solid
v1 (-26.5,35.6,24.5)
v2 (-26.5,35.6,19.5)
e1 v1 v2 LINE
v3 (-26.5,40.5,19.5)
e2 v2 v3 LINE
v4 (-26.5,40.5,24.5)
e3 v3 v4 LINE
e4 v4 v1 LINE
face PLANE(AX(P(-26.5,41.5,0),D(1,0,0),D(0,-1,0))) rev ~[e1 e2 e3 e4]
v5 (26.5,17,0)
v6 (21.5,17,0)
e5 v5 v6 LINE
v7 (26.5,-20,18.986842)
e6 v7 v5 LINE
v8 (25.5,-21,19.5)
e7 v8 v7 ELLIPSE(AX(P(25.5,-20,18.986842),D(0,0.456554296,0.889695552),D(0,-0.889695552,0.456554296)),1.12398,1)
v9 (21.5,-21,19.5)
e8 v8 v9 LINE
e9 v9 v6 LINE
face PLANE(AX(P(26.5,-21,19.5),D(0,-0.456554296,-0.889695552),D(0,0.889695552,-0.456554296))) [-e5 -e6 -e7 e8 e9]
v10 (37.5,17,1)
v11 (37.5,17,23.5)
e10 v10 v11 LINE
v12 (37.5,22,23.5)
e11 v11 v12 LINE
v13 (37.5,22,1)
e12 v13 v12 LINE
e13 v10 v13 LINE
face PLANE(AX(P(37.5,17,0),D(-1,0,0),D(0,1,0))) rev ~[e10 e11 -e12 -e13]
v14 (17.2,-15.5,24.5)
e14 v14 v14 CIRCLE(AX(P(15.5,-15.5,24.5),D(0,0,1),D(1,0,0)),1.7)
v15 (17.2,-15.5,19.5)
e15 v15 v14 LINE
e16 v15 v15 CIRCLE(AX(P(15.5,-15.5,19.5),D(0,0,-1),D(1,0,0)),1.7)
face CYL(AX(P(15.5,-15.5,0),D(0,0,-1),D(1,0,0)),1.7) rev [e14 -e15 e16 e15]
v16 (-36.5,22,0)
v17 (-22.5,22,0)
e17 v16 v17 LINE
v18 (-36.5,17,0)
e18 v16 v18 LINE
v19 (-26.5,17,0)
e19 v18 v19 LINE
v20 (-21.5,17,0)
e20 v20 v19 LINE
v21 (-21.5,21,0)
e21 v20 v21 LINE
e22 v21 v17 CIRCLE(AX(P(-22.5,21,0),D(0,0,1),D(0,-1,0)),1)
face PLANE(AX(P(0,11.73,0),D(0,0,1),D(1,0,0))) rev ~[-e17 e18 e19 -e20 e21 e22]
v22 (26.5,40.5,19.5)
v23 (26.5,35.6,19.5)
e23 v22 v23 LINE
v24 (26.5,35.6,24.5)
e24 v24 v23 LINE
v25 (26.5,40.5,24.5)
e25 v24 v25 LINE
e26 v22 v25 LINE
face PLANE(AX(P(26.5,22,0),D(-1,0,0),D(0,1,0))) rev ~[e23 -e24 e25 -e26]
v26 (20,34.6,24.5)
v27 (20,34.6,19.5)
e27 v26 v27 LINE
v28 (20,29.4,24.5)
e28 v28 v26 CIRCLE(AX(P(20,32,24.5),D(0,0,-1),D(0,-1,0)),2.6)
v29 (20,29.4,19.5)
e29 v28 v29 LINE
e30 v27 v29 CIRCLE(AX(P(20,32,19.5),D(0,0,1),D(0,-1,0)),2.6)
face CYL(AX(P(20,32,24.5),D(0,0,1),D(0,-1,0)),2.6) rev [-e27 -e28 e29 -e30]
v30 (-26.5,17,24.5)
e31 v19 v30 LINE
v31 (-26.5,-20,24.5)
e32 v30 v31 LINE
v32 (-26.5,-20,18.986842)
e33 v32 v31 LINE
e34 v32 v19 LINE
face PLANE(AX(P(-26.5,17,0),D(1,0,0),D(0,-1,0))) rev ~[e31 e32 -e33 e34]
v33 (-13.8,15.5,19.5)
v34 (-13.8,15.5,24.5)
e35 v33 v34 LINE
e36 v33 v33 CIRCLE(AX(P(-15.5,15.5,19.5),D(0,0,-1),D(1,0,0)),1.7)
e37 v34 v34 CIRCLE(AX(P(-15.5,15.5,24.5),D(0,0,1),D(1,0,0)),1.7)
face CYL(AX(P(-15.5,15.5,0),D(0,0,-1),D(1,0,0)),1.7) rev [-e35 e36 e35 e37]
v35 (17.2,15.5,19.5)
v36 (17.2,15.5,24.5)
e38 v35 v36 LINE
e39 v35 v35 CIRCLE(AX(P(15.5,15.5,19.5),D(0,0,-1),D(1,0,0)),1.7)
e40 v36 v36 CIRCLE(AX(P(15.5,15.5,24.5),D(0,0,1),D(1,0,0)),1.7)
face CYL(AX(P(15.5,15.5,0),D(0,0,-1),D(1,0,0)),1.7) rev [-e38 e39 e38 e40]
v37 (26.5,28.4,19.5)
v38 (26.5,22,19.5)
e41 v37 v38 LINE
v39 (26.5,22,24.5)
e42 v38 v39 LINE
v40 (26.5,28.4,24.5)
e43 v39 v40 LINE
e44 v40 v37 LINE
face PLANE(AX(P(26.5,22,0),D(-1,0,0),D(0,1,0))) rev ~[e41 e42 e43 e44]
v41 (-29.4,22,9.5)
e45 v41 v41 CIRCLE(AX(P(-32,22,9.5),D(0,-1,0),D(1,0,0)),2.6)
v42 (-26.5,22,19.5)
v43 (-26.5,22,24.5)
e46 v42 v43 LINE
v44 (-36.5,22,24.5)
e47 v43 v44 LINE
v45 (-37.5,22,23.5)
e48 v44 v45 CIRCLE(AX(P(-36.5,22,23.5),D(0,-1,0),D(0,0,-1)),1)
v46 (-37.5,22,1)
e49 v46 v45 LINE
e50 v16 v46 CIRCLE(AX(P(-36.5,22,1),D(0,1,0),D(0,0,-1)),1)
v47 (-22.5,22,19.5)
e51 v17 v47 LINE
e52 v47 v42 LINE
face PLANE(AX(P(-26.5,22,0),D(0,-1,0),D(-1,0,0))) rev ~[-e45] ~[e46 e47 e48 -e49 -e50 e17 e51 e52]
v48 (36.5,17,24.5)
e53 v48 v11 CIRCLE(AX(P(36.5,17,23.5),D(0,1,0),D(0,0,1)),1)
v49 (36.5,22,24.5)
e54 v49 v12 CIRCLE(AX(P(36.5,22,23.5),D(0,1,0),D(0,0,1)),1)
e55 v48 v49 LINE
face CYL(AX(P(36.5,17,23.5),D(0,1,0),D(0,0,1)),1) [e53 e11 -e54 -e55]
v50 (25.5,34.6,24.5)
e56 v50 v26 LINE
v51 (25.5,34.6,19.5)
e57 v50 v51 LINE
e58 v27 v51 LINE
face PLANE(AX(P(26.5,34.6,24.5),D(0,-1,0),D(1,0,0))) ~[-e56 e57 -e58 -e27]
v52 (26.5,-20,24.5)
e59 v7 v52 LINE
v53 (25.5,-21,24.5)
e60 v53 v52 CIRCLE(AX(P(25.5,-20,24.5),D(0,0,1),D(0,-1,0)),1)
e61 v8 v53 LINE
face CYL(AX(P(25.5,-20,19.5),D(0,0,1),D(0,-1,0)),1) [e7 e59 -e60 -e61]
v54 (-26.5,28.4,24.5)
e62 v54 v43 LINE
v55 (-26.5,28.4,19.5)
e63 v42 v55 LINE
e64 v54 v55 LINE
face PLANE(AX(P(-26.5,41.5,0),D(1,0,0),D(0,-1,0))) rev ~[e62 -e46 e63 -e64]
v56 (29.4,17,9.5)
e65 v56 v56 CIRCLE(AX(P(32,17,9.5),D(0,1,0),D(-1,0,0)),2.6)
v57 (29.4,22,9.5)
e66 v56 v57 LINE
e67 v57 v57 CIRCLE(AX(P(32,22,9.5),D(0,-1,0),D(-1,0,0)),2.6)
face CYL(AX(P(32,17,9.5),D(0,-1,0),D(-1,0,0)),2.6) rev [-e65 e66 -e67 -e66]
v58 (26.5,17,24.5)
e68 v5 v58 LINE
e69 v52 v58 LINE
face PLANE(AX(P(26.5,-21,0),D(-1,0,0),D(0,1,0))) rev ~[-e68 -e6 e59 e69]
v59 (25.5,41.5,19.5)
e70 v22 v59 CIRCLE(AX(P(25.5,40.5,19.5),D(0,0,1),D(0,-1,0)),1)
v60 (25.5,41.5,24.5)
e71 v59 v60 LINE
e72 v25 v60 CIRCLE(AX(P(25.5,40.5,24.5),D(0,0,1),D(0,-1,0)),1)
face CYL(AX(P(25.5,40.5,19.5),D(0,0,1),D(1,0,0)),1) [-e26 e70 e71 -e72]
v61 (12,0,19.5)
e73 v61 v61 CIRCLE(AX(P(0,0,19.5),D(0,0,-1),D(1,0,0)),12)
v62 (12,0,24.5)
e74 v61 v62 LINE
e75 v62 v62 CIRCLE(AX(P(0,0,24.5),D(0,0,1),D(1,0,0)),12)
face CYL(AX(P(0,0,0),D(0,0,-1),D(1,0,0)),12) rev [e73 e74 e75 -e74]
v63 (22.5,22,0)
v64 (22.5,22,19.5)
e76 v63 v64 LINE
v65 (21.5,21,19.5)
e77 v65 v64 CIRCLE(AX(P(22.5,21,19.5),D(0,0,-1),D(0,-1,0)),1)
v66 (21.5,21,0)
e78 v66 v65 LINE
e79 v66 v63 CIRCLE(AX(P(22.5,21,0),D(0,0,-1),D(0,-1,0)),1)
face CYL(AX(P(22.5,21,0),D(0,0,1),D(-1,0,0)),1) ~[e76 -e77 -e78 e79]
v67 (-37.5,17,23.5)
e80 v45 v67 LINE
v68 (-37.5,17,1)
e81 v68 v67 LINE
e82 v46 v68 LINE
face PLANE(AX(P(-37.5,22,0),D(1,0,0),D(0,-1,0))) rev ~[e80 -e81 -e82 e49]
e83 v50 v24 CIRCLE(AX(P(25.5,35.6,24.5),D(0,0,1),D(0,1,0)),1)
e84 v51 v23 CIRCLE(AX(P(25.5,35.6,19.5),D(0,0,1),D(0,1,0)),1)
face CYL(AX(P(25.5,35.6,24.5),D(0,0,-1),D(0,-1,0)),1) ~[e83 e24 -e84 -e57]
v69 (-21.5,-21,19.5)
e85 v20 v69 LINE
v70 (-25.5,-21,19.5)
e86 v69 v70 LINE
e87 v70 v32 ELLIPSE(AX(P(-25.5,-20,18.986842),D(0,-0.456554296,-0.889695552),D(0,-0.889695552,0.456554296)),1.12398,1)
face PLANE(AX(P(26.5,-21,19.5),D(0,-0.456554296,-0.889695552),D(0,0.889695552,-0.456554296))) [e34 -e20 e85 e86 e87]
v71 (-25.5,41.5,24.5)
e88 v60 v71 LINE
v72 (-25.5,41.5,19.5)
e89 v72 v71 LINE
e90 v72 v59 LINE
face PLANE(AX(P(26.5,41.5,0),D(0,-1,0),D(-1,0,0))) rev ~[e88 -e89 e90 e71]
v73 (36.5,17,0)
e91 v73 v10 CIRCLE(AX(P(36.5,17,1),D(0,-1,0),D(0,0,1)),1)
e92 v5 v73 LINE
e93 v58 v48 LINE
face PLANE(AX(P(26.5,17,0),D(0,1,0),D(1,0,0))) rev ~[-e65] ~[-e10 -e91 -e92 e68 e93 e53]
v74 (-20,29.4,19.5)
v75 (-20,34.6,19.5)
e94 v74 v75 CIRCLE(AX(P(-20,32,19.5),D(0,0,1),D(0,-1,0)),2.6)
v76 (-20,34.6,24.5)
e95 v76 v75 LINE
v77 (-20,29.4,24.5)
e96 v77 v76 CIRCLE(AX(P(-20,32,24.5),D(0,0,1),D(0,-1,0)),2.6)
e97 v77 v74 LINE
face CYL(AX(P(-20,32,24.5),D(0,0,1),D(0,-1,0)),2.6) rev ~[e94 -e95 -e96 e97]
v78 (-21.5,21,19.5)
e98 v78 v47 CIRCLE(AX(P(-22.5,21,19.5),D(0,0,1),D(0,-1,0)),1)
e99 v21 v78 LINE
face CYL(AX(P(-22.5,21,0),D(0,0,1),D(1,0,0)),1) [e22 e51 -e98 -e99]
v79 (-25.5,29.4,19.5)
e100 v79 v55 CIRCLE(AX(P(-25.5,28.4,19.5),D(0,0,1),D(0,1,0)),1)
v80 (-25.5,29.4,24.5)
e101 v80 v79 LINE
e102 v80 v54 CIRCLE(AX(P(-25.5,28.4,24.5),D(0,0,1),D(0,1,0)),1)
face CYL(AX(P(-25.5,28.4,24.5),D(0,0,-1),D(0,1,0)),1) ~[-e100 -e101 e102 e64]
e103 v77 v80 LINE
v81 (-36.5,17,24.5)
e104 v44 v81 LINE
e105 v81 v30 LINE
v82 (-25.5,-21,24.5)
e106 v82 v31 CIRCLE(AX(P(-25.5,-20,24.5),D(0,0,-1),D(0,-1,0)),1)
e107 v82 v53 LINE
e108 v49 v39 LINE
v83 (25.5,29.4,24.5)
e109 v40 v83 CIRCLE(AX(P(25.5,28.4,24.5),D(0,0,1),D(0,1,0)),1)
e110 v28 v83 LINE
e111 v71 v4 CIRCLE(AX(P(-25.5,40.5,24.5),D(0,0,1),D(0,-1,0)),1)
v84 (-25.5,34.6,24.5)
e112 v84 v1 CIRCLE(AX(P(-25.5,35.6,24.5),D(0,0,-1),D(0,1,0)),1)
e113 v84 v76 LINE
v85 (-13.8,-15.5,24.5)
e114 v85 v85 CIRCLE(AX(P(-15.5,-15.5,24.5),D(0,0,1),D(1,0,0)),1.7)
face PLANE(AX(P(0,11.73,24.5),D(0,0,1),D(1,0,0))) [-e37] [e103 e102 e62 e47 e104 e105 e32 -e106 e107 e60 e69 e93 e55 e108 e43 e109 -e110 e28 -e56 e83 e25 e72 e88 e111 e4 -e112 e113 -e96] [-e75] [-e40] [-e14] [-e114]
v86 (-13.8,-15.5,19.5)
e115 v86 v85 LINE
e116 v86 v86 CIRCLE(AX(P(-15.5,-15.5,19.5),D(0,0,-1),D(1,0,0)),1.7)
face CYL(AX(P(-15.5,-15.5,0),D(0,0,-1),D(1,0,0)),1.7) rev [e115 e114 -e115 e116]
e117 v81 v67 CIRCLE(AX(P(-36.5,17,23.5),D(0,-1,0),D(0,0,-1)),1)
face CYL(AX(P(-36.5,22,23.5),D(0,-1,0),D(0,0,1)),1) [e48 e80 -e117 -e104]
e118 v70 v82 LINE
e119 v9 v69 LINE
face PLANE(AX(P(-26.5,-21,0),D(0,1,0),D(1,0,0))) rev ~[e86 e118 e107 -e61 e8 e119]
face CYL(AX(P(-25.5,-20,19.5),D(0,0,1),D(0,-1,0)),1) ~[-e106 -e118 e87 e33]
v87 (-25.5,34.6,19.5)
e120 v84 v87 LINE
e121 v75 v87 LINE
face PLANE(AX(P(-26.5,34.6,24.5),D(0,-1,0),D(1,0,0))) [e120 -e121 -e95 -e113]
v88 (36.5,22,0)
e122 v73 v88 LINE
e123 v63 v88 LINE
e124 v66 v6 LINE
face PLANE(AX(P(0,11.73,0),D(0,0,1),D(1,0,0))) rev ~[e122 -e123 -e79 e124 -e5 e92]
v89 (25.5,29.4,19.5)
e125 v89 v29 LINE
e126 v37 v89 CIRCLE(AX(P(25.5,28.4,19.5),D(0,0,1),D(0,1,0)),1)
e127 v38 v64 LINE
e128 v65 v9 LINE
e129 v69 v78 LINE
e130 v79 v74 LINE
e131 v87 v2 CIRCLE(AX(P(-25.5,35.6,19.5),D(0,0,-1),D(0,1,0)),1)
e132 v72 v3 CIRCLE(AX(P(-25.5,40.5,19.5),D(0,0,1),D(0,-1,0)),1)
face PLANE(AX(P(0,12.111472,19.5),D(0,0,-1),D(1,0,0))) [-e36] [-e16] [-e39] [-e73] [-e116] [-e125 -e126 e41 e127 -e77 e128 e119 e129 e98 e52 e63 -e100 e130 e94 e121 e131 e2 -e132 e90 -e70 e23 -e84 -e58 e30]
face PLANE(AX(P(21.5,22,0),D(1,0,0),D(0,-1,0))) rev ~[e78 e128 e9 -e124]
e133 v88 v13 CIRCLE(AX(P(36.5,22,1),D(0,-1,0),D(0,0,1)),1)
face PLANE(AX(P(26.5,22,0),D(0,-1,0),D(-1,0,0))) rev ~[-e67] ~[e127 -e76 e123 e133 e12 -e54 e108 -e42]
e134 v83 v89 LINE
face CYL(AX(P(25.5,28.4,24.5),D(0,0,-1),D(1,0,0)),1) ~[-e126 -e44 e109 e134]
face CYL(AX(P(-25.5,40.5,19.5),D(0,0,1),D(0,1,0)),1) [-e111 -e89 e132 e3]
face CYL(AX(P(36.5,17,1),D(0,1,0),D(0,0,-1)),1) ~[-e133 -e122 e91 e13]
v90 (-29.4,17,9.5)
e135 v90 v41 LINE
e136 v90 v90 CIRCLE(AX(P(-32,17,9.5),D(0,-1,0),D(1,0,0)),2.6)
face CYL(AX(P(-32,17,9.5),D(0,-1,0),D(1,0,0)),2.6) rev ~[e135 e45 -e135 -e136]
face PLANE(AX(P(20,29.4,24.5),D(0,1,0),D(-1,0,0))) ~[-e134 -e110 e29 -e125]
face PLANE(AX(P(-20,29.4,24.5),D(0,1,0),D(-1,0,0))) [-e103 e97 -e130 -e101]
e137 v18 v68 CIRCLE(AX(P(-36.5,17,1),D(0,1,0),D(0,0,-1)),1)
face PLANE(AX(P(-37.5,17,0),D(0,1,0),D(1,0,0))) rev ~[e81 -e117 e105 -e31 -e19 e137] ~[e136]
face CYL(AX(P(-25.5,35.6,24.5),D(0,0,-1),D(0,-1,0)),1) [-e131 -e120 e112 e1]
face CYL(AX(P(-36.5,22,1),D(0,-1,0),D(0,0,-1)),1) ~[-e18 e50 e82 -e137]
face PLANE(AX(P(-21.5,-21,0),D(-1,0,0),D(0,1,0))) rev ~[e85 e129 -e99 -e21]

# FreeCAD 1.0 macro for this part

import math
import FreeCAD as App
import Part
import Sketcher
from FreeCAD import Vector


def edges_at(feature, points):
    """Names of the edges that pass closest to the given points."""
    edges = feature.Shape.Edges
    near = lambda p: min(range(len(edges)), key=lambda i: edges[i].distToShape(Part.Vertex(*p))[0])
    return sorted({f"Edge{near(p) + 1}" for p in points})


def add_polygon(sketch, points):
    """Adds a closed chain of lines whose ends are joined by coincident constraints."""
    first, n = sketch.GeometryCount, len(points)
    for a, b in zip(points, points[1:] + points[:1]):
        sketch.addGeometry(Part.LineSegment(App.Vector(*a, 0), App.Vector(*b, 0)), False)
    for i in range(n):
        sketch.addConstraint(Sketcher.Constraint("Coincident", first + i, 2, first + (i + 1) % n, 1))

doc = App.newDocument("Part")
body = doc.addObject("PartDesign::Body", "Body")

# Sketch on XY plane
sketch1 = body.newObject("Sketcher::SketchObject", "Sketch")
sketch1.AttachmentSupport = (doc.getObject("XY_Plane"), [""])
sketch1.MapMode = "FlatFace"
add_polygon(sketch1, [(-26.5, -21), (26.5, -21), (26.5, 17), (37.5, 17), (37.5, 22), (26.5, 22), (26.5, 41.5), (-26.5, 41.5), (-26.5, 22), (-37.5, 22), (-37.5, 17), (-26.5, 17)])  # lines 0-11
sketch1.addGeometry(Part.Circle(Vector(-15.5, -15.5, 0), Vector(0, 0, 1), 1.7), False)  # 12
sketch1.addGeometry(Part.Circle(Vector(15.5, -15.5, 0), Vector(0, 0, 1), 1.7), False)  # 13
sketch1.addGeometry(Part.Circle(Vector(-15.5, 15.5, 0), Vector(0, 0, 1), 1.7), False)  # 14
sketch1.addGeometry(Part.Circle(Vector(0, 0, 0), Vector(0, 0, 1), 12), False)  # 15
sketch1.addGeometry(Part.Circle(Vector(15.5, 15.5, 0), Vector(0, 0, 1), 1.7), False)  # 16
sketch1.addConstraint([
    Sketcher.Constraint("Horizontal", 0),
    Sketcher.Constraint("Vertical", 1),
    Sketcher.Constraint("Horizontal", 2),
    Sketcher.Constraint("Vertical", 3),
    Sketcher.Constraint("Horizontal", 4),
    Sketcher.Constraint("Vertical", 5),
    Sketcher.Constraint("Horizontal", 6),
    Sketcher.Constraint("Vertical", 7),
    Sketcher.Constraint("Horizontal", 8),
    Sketcher.Constraint("Vertical", 9),
    Sketcher.Constraint("Horizontal", 10),
    Sketcher.Constraint("Vertical", 11),
    Sketcher.Constraint("Coincident", 15, 3, -1, 1),
    Sketcher.Constraint("Equal", 12, 13),
    Sketcher.Constraint("Equal", 13, 14),
    Sketcher.Constraint("Equal", 14, 16),
    Sketcher.Constraint("Symmetric", 13, 3, 14, 3, -1, 1),
    Sketcher.Constraint("Symmetric", 12, 3, 16, 3, -1, 1),
    Sketcher.Constraint("Symmetric", 12, 3, 13, 3, -2),
    Sketcher.Constraint("Symmetric", 4, 2, 7, 2, -2),
    Sketcher.Constraint("Symmetric", 2, 2, 9, 2, -2),
    Sketcher.Constraint("Vertical", 1, 2, 4, 2),
    Sketcher.Constraint("Vertical", 7, 2, 10, 2),
    Sketcher.Constraint("Diameter", 15, 24.0),
    Sketcher.Constraint("Diameter", 12, 3.4),
    Sketcher.Constraint("DistanceX", 0, 1, 0, 2, 53.0),
    Sketcher.Constraint("DistanceX", 2, 1, 2, 2, 11.0),
    Sketcher.Constraint("DistanceY", 1, 1, 1, 2, 38.0),
    Sketcher.Constraint("DistanceY", 3, 1, 3, 2, 5.0),
    Sketcher.Constraint("DistanceY", 5, 1, 5, 2, 19.5),
    Sketcher.Constraint("DistanceY", 0, 2, -1, 1, 21.0),
    Sketcher.Constraint("DistanceX", 12, 3, 13, 3, 31.0),
    Sketcher.Constraint("DistanceY", 12, 3, 14, 3, 31.0),
])
pad1 = body.newObject("PartDesign::Pad", "Pad")
pad1.Profile = sketch1
pad1.Length = 24.5

# Sketch on XY plane
sketch2 = body.newObject("Sketcher::SketchObject", "Sketch001")
sketch2.AttachmentSupport = (doc.getObject("XY_Plane"), [""])
sketch2.MapMode = "FlatFace"
add_polygon(sketch2, [(-26, 42), (26, 42), (26, 22), (22, 22), (22, -21), (-22, -21), (-22, 22), (-26, 22)])  # lines 0-7
sketch2.addConstraint([
    Sketcher.Constraint("Horizontal", 0),
    Sketcher.Constraint("Vertical", 1),
    Sketcher.Constraint("Horizontal", 2),
    Sketcher.Constraint("Vertical", 3),
    Sketcher.Constraint("Horizontal", 4),
    Sketcher.Constraint("Vertical", 5),
    Sketcher.Constraint("Horizontal", 6),
    Sketcher.Constraint("Vertical", 7),
    Sketcher.Constraint("Symmetric", 2, 2, 5, 2, -2),
    Sketcher.Constraint("Equal", 2, 6),
    Sketcher.Constraint("Equal", 4, 3),
    Sketcher.Constraint("DistanceX", 0, 1, 0, 2, 53.0),
    Sketcher.Constraint("DistanceX", 2, 2, 2, 1, 5.0),
    Sketcher.Constraint("DistanceY", 1, 2, 1, 1, 19.5),
    Sketcher.Constraint("DistanceY", -1, 1, 1, 2, 22.0),
])
pocket1 = body.newObject("PartDesign::Pocket", "Pocket")
pocket1.Profile = sketch2
pocket1.Length = 19.5
pocket1.Reversed = True

# Sketch on YZ plane
sketch3 = body.newObject("Sketcher::SketchObject", "Sketch002")
sketch3.AttachmentSupport = (doc.getObject("YZ_Plane"), [""])
sketch3.MapMode = "FlatFace"
sketch3.AttachmentOffset = App.Placement(Vector(0, 0, 26.5), App.Rotation())
add_polygon(sketch3, [(-21, 0), (17, 0), (-21, 20)])  # lines 0-2
sketch3.addConstraint([
    Sketcher.Constraint("Horizontal", 0),
    Sketcher.Constraint("Vertical", 2),
    Sketcher.Constraint("PointOnObject", 0, 2, -1),
    Sketcher.Constraint("DistanceX", 0, 1, 0, 2, 38.0),
    Sketcher.Constraint("DistanceY", 2, 2, 2, 1, 19.5),
    Sketcher.Constraint("DistanceX", -1, 1, 0, 2, 17.0),
])
pocket2 = body.newObject("PartDesign::Pocket", "Pocket001")
pocket2.Profile = sketch3
pocket2.Type = "ThroughAll"

# Sketch on XY plane
sketch4 = body.newObject("Sketcher::SketchObject", "Sketch003")
sketch4.AttachmentSupport = (doc.getObject("XY_Plane"), [""])
sketch4.MapMode = "FlatFace"
sketch4.AttachmentOffset = App.Placement(Vector(0, 0, 24.5), App.Rotation())
sketch4.addGeometry([
    Part.LineSegment(Vector(-20, 34.6, 0), Vector(-26.5, 34.6, 0)),
    Part.LineSegment(Vector(-26.5, 34.6, 0), Vector(-26.5, 29.4, 0)),
    Part.LineSegment(Vector(-26.5, 29.4, 0), Vector(-20, 29.4, 0)),
    Part.ArcOfCircle(Part.Circle(Vector(-20, 32, 0), Vector(0, 0, 1), 2.6), math.radians(-90), math.radians(90)),
], False)
sketch4.addConstraint([
    Sketcher.Constraint("Coincident", 0, 2, 1, 1),
    Sketcher.Constraint("Coincident", 1, 2, 2, 1),
    Sketcher.Constraint("Tangent", 2, 2, 3, 1),
    Sketcher.Constraint("Tangent", 3, 2, 0, 1),
    Sketcher.Constraint("Horizontal", 0),
    Sketcher.Constraint("Vertical", 1),
    Sketcher.Constraint("Horizontal", 2),
    Sketcher.Constraint("Radius", 3, 2.6),
    Sketcher.Constraint("DistanceX", 0, 2, 0, 1, 6.5),
    Sketcher.Constraint("DistanceX", 3, 3, -1, 1, 20.0),
    Sketcher.Constraint("DistanceY", -1, 1, 3, 3, 32.0),
])
pocket3 = body.newObject("PartDesign::Pocket", "Pocket002")
pocket3.Profile = sketch4
pocket3.Type = "ThroughAll"

# Sketch on XZ plane
sketch5 = body.newObject("Sketcher::SketchObject", "Sketch004")
sketch5.AttachmentSupport = (doc.getObject("XZ_Plane"), [""])
sketch5.MapMode = "FlatFace"
sketch5.AttachmentOffset = App.Placement(Vector(0, 0, -17), App.Rotation())
sketch5.addGeometry(Part.Circle(Vector(-32, 9.5, 0), Vector(0, 0, 1), 2.6), False)
sketch5.addConstraint([
    Sketcher.Constraint("Diameter", 0, 5.2),
    Sketcher.Constraint("DistanceX", 0, 3, -1, 1, 32.0),
    Sketcher.Constraint("DistanceY", -1, 1, 0, 3, 9.5),
])
pocket4 = body.newObject("PartDesign::Pocket", "Pocket003")
pocket4.Profile = sketch5
pocket4.Type = "ThroughAll"
doc.recompute()

mirrored = body.newObject("PartDesign::Mirrored", "Mirrored")
mirrored.Originals = [pocket4]
mirrored.MirrorPlane = (doc.getObject("YZ_Plane"), [""])
body.Tip = mirrored
doc.recompute()

mirrored2 = body.newObject("PartDesign::Mirrored", "Mirrored001")
mirrored2.Originals = [pocket3]
mirrored2.MirrorPlane = (doc.getObject("YZ_Plane"), [""])
body.Tip = mirrored2
doc.recompute()

fillet = body.newObject("PartDesign::Fillet", "Fillet")
fillet.Base = (mirrored2, edges_at(mirrored2, [
    (-26.5, 41.5, 22),
    (-26.5, 34.6, 22),
    (-26.5, 29.4, 22),
    (26.5, 34.6, 22),
    (26.5, 41.5, 22),
    (26.5, 29.4, 22),
    (-26.5, -21, 22),
    (26.5, -21, 22),
    (-21.5, 22, 9.75),
    (21.5, 22, 9.75),
    (-37.5, 19.5, 24.5),
    (37.5, 19.5, 24.5),
    (-37.5, 19.5, 0),
    (37.5, 19.5, 0),
]))
fillet.Radius = 1

doc.recompute()
